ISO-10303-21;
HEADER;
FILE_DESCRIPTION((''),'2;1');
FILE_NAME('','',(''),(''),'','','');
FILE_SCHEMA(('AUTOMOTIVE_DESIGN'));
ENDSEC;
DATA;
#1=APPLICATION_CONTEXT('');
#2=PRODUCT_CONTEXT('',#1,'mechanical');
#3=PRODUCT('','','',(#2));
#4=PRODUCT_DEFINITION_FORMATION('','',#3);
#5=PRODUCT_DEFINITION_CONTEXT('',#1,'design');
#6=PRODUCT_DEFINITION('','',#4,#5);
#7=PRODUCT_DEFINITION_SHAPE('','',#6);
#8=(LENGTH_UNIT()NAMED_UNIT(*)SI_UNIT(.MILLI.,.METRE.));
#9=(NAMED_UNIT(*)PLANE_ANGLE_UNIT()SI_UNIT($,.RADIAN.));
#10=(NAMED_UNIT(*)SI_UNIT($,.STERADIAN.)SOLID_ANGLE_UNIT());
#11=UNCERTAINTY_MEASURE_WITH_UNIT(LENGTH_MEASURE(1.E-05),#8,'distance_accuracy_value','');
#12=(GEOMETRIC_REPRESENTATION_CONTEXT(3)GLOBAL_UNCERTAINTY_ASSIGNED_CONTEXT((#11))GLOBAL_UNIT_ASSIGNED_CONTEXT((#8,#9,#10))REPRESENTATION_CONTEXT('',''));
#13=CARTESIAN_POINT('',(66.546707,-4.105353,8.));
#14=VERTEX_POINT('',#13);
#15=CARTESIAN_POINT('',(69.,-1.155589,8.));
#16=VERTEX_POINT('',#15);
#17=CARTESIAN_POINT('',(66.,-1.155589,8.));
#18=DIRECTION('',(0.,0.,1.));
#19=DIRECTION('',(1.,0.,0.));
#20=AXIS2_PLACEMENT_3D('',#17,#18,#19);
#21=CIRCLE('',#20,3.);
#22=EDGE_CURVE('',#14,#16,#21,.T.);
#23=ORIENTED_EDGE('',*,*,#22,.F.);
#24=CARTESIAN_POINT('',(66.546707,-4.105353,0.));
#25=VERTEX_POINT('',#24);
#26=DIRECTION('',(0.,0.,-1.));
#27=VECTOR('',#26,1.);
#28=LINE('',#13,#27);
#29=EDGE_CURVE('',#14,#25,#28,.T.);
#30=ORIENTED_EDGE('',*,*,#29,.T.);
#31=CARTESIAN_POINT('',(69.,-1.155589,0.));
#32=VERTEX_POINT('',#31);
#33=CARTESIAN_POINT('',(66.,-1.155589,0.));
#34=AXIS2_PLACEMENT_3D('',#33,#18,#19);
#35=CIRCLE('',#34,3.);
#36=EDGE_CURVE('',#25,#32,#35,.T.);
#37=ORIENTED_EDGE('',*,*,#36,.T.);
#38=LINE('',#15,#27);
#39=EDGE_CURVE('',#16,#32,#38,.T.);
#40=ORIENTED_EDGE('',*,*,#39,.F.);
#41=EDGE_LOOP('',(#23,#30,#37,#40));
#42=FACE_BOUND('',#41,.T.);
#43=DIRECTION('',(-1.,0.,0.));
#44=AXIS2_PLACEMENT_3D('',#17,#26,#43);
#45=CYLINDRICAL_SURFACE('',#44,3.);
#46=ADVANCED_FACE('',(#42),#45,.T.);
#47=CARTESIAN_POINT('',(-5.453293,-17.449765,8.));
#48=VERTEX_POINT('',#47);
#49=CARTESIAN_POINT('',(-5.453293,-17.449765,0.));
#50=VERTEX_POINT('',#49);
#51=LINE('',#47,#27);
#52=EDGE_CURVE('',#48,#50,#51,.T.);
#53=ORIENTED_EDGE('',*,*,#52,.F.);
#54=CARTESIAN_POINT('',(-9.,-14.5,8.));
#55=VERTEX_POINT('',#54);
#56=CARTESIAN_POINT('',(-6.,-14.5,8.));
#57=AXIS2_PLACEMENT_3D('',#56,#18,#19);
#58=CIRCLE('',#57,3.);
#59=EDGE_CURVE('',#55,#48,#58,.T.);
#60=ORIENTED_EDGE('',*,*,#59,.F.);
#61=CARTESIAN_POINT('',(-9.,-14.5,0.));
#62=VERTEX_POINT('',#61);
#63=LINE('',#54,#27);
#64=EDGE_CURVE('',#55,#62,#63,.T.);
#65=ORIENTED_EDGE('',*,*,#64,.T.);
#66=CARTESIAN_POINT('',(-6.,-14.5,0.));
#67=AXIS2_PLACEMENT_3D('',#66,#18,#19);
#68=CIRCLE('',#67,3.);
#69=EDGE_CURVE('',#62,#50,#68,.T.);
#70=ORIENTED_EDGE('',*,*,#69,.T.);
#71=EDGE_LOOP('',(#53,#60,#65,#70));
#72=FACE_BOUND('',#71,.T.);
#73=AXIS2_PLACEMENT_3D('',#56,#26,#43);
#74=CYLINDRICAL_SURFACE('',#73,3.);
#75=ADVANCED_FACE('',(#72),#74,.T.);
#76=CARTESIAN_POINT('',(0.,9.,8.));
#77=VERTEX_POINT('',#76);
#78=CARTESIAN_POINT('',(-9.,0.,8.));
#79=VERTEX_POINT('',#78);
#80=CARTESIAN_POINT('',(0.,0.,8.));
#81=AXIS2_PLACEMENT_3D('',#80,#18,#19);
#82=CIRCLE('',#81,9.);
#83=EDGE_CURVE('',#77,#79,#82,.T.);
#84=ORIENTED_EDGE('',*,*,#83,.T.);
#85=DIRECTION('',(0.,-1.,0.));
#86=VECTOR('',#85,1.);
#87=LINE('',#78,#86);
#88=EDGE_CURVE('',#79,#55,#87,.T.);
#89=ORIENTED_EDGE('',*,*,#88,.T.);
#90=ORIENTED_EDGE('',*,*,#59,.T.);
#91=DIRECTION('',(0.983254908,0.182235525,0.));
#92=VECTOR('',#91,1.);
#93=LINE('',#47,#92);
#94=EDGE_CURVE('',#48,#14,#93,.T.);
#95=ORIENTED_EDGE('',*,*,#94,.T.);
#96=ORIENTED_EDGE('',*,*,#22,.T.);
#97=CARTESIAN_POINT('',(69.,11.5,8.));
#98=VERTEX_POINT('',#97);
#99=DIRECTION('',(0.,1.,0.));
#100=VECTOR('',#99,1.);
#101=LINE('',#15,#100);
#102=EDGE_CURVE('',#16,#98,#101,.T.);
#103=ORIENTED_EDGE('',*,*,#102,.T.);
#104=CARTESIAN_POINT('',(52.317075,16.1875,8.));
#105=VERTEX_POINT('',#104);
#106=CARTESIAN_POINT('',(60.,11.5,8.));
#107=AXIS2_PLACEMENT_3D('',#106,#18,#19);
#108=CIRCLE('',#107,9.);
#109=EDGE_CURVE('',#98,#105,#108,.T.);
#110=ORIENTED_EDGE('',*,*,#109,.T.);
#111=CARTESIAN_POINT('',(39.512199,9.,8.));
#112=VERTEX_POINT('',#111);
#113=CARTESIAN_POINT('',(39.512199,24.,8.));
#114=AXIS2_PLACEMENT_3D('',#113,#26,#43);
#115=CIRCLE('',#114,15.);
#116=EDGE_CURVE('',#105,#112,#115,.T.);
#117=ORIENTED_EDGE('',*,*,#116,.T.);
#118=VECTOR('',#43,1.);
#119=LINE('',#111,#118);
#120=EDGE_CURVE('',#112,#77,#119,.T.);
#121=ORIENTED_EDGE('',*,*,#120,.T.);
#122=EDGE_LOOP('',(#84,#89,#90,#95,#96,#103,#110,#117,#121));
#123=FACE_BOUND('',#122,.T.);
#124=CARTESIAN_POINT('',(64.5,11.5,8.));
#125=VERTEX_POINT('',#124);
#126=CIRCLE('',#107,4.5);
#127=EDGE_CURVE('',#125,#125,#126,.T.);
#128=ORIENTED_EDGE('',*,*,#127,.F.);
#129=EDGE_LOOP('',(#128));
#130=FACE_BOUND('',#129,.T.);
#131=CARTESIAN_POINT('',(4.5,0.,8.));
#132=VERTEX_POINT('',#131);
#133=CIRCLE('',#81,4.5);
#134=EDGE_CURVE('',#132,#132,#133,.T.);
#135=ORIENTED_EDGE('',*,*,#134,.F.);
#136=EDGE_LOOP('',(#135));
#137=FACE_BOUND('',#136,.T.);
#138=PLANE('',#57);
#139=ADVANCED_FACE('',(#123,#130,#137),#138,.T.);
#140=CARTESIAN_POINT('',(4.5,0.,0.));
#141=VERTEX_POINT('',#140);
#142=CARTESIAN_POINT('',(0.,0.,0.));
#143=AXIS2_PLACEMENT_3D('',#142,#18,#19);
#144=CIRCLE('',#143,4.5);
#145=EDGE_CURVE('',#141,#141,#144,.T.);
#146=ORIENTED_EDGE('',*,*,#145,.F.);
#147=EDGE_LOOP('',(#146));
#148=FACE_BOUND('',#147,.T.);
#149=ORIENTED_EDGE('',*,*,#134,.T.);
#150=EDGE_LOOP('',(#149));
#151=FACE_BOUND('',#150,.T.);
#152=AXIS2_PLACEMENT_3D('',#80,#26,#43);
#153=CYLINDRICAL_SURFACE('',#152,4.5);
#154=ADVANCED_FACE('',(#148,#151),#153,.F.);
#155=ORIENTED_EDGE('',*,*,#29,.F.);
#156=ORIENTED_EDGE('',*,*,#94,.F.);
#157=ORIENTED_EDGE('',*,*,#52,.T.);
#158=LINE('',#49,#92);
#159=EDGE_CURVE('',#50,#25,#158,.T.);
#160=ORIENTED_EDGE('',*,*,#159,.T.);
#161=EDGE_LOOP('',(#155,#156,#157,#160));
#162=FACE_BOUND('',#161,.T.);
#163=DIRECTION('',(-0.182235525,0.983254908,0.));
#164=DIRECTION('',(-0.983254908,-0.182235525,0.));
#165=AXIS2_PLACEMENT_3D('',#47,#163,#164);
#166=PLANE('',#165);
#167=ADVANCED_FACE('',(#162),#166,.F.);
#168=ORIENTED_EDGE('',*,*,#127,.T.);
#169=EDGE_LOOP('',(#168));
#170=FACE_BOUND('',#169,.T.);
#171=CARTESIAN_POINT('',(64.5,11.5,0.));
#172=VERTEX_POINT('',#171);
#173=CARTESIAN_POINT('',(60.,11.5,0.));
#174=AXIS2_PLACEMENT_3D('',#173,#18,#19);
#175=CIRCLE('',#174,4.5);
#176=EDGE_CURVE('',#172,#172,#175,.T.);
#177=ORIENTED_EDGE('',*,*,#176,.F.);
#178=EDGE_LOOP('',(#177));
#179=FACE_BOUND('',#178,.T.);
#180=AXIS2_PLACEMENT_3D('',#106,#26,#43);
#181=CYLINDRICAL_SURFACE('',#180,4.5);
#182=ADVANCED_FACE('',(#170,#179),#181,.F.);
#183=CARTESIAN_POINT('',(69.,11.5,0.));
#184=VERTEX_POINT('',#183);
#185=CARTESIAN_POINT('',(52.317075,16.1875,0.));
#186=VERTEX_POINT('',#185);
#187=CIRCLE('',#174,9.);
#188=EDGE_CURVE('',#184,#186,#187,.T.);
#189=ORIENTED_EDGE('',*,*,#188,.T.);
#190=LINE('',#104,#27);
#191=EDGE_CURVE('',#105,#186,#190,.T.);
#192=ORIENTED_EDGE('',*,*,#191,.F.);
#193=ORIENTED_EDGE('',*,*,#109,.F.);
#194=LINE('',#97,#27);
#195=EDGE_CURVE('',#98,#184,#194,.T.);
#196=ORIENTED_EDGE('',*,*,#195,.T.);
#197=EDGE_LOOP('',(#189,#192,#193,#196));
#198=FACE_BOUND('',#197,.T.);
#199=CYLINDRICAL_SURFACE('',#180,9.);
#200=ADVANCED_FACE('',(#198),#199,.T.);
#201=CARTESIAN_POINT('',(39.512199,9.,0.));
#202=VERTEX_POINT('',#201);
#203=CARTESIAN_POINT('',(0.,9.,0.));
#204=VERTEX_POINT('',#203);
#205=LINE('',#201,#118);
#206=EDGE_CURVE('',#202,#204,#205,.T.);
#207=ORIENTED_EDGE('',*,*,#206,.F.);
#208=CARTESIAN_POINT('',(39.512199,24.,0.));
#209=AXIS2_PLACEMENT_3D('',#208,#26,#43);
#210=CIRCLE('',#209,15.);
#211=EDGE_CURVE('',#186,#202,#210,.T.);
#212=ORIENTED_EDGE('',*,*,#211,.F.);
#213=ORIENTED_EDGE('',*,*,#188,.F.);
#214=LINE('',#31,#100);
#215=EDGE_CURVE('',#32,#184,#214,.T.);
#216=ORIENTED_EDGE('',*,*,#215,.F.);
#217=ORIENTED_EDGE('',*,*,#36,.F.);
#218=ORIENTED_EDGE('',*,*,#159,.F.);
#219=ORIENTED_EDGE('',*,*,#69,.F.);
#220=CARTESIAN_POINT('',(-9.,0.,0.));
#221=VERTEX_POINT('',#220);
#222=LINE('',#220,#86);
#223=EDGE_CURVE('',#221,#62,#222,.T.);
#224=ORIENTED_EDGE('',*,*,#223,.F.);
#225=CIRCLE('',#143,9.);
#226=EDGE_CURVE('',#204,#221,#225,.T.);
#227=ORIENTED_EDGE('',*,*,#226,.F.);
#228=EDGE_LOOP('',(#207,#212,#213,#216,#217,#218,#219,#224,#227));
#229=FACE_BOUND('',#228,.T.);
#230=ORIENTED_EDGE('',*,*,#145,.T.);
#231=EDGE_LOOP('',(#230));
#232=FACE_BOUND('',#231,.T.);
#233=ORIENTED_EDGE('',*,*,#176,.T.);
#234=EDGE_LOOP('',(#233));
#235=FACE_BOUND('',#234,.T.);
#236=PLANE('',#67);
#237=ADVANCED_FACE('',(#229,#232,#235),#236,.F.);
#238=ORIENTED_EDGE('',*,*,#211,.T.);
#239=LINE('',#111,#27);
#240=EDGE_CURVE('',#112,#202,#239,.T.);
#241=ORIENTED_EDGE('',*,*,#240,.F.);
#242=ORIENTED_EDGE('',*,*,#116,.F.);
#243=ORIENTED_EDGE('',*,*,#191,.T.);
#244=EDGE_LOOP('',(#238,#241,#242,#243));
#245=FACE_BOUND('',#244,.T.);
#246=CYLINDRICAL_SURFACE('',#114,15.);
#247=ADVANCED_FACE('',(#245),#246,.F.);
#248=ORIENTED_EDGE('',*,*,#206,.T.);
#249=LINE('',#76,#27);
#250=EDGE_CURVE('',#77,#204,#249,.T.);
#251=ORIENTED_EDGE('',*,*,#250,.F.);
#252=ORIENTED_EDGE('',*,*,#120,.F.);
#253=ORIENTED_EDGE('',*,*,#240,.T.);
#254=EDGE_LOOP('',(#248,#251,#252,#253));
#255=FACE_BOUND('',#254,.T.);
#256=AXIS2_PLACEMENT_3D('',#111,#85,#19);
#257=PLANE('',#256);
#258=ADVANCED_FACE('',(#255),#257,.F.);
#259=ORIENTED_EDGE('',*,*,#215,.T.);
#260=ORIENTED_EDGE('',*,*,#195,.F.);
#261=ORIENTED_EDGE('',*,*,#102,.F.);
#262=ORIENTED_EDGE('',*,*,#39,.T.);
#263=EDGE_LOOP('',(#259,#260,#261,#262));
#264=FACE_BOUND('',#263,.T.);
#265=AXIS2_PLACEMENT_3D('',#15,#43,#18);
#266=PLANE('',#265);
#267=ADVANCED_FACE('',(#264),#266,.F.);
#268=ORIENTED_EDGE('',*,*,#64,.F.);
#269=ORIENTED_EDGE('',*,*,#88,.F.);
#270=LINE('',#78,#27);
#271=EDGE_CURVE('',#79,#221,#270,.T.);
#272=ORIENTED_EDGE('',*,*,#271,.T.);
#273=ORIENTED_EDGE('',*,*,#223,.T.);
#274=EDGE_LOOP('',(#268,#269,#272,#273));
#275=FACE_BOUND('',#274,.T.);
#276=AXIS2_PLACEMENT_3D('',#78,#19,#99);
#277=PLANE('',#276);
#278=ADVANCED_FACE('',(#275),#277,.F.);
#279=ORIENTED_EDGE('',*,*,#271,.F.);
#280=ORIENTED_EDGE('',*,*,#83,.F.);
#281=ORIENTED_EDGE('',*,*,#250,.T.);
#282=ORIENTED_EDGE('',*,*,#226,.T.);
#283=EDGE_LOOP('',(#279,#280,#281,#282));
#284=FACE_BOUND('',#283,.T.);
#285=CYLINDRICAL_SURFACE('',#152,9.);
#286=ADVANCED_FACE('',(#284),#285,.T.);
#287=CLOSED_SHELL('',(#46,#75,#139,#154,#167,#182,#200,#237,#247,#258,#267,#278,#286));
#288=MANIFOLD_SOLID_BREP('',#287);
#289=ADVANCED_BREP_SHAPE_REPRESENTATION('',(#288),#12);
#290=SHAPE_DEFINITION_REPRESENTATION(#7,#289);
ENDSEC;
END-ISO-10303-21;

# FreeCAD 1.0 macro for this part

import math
import FreeCAD as App
import Part
import Sketcher
Q = App.Units.Quantity

doc = App.newDocument("Part")
params = doc.addObject("Spreadsheet::Sheet", "Params")
for row, (alias, value) in enumerate([
    ("sketch1_diameter", "9 mm"),
    ("sketch1_radius", "3 mm"),
    ("sketch1_radius2", "9 mm"),
    ("sketch1_radius3", "15 mm"),
    ("sketch1_height", "14.5 mm"),
    ("pad1_length", "8 mm"),
], start=1):
    params.set(f"A{row}", alias)
    params.set(f"B{row}", "=" + value)
    params.setAlias(f"B{row}", alias)

body = doc.addObject("PartDesign::Body", "Body")

sketch1 = body.newObject("Sketcher::SketchObject", "Sketch")
sketch1.AttachmentSupport = (doc.getObject("XY_Plane"), [""])
sketch1.MapMode = "FlatFace"
sketch1.addGeometry(Part.LineSegment(App.Vector(-9, 0, 0), App.Vector(-9, -14.5, 0)), False)
sketch1.addGeometry(Part.ArcOfCircle(Part.Circle(App.Vector(-6, -14.5, 0), App.Vector(0, 0, 1), 3), math.radians(180), math.radians(280)), False)
sketch1.addGeometry(Part.LineSegment(App.Vector(-5.5, -17.4, 0), App.Vector(66.5, -4.1, 0)), False)
sketch1.addGeometry(Part.ArcOfCircle(Part.Circle(App.Vector(66, -1.2, 0), App.Vector(0, 0, 1), 3), math.radians(-79), math.radians(0)), False)
sketch1.addGeometry(Part.LineSegment(App.Vector(69, -1.2, 0), App.Vector(69, 11.5, 0)), False)
sketch1.addGeometry(Part.ArcOfCircle(Part.Circle(App.Vector(60, 11.5, 0), App.Vector(0, 0, 1), 9), math.radians(0), math.radians(149)), False)
sketch1.addGeometry(Part.ArcOfCircle(Part.Circle(App.Vector(39.5, 24, 0), App.Vector(0, 0, 1), 15), math.radians(-90), math.radians(-31)), False)
sketch1.addGeometry(Part.LineSegment(App.Vector(39.5, 9, 0), App.Vector(0, 9, 0)), False)
sketch1.addGeometry(Part.ArcOfCircle(Part.Circle(App.Vector(0, 0, 0), App.Vector(0, 0, 1), 9), math.radians(90), math.radians(180)), False)
sketch1.addGeometry(Part.Circle(App.Vector(0, 0, 0), App.Vector(0, 0, 1), 4.5), False)
sketch1.addGeometry(Part.Circle(App.Vector(60, 11.5, 0), App.Vector(0, 0, 1), 4.5), False)
sketch1.addConstraint(Sketcher.Constraint("Tangent", 0, 2, 1, 1))
sketch1.addConstraint(Sketcher.Constraint("Tangent", 1, 2, 2, 1))
sketch1.addConstraint(Sketcher.Constraint("Tangent", 2, 2, 3, 1))
sketch1.addConstraint(Sketcher.Constraint("Tangent", 3, 2, 4, 1))
sketch1.addConstraint(Sketcher.Constraint("Tangent", 4, 2, 5, 1))
sketch1.addConstraint(Sketcher.Constraint("Tangent", 5, 2, 6, 2))
sketch1.addConstraint(Sketcher.Constraint("Tangent", 6, 1, 7, 1))
sketch1.addConstraint(Sketcher.Constraint("Tangent", 7, 2, 8, 1))
sketch1.addConstraint(Sketcher.Constraint("Tangent", 8, 2, 0, 1))
sketch1.addConstraint(Sketcher.Constraint("Vertical", 0))
sketch1.addConstraint(Sketcher.Constraint("Vertical", 4))
sketch1.addConstraint(Sketcher.Constraint("Horizontal", 7))
sketch1.addConstraint(Sketcher.Constraint("Coincident", 8, 3, -1, 1))
sketch1.addConstraint(Sketcher.Constraint("Coincident", 9, 3, -1, 1))
sketch1.addConstraint(Sketcher.Constraint("Coincident", 10, 3, 5, 3))
sketch1.addConstraint(Sketcher.Constraint("Equal", 1, 3))
sketch1.addConstraint(Sketcher.Constraint("Equal", 5, 8))
sketch1.addConstraint(Sketcher.Constraint("Equal", 9, 10))
sketch1.addConstraint(Sketcher.Constraint("Diameter", 9, Q("9 mm")))
sketch1.addConstraint(Sketcher.Constraint("Radius", 1, Q("3 mm")))
sketch1.addConstraint(Sketcher.Constraint("Radius", 5, Q("9 mm")))
sketch1.addConstraint(Sketcher.Constraint("Radius", 6, Q("15 mm")))
sketch1.addConstraint(Sketcher.Constraint("DistanceY", 0, 2, 0, 1, Q("14.5 mm")))
sketch1.addConstraint(Sketcher.Constraint("DistanceX", -1, 1, 3, 3, Q("66 mm")))
sketch1.addConstraint(Sketcher.Constraint("Angle", 2, Q("10.5 deg")))
sketch1.addConstraint(Sketcher.Constraint("DistanceY", 1, 3, 5, 3, Q("26 mm")))
sketch1.setExpression("Constraints[18]", "Params.sketch1_diameter")
sketch1.setExpression("Constraints[19]", "Params.sketch1_radius")
sketch1.setExpression("Constraints[20]", "Params.sketch1_radius2")
sketch1.setExpression("Constraints[21]", "Params.sketch1_radius3")
sketch1.setExpression("Constraints[22]", "Params.sketch1_height")
pad1 = body.newObject("PartDesign::Pad", "Pad")
pad1.Profile = sketch1
pad1.setExpression("Length", "Params.pad1_length")

doc.recompute()
